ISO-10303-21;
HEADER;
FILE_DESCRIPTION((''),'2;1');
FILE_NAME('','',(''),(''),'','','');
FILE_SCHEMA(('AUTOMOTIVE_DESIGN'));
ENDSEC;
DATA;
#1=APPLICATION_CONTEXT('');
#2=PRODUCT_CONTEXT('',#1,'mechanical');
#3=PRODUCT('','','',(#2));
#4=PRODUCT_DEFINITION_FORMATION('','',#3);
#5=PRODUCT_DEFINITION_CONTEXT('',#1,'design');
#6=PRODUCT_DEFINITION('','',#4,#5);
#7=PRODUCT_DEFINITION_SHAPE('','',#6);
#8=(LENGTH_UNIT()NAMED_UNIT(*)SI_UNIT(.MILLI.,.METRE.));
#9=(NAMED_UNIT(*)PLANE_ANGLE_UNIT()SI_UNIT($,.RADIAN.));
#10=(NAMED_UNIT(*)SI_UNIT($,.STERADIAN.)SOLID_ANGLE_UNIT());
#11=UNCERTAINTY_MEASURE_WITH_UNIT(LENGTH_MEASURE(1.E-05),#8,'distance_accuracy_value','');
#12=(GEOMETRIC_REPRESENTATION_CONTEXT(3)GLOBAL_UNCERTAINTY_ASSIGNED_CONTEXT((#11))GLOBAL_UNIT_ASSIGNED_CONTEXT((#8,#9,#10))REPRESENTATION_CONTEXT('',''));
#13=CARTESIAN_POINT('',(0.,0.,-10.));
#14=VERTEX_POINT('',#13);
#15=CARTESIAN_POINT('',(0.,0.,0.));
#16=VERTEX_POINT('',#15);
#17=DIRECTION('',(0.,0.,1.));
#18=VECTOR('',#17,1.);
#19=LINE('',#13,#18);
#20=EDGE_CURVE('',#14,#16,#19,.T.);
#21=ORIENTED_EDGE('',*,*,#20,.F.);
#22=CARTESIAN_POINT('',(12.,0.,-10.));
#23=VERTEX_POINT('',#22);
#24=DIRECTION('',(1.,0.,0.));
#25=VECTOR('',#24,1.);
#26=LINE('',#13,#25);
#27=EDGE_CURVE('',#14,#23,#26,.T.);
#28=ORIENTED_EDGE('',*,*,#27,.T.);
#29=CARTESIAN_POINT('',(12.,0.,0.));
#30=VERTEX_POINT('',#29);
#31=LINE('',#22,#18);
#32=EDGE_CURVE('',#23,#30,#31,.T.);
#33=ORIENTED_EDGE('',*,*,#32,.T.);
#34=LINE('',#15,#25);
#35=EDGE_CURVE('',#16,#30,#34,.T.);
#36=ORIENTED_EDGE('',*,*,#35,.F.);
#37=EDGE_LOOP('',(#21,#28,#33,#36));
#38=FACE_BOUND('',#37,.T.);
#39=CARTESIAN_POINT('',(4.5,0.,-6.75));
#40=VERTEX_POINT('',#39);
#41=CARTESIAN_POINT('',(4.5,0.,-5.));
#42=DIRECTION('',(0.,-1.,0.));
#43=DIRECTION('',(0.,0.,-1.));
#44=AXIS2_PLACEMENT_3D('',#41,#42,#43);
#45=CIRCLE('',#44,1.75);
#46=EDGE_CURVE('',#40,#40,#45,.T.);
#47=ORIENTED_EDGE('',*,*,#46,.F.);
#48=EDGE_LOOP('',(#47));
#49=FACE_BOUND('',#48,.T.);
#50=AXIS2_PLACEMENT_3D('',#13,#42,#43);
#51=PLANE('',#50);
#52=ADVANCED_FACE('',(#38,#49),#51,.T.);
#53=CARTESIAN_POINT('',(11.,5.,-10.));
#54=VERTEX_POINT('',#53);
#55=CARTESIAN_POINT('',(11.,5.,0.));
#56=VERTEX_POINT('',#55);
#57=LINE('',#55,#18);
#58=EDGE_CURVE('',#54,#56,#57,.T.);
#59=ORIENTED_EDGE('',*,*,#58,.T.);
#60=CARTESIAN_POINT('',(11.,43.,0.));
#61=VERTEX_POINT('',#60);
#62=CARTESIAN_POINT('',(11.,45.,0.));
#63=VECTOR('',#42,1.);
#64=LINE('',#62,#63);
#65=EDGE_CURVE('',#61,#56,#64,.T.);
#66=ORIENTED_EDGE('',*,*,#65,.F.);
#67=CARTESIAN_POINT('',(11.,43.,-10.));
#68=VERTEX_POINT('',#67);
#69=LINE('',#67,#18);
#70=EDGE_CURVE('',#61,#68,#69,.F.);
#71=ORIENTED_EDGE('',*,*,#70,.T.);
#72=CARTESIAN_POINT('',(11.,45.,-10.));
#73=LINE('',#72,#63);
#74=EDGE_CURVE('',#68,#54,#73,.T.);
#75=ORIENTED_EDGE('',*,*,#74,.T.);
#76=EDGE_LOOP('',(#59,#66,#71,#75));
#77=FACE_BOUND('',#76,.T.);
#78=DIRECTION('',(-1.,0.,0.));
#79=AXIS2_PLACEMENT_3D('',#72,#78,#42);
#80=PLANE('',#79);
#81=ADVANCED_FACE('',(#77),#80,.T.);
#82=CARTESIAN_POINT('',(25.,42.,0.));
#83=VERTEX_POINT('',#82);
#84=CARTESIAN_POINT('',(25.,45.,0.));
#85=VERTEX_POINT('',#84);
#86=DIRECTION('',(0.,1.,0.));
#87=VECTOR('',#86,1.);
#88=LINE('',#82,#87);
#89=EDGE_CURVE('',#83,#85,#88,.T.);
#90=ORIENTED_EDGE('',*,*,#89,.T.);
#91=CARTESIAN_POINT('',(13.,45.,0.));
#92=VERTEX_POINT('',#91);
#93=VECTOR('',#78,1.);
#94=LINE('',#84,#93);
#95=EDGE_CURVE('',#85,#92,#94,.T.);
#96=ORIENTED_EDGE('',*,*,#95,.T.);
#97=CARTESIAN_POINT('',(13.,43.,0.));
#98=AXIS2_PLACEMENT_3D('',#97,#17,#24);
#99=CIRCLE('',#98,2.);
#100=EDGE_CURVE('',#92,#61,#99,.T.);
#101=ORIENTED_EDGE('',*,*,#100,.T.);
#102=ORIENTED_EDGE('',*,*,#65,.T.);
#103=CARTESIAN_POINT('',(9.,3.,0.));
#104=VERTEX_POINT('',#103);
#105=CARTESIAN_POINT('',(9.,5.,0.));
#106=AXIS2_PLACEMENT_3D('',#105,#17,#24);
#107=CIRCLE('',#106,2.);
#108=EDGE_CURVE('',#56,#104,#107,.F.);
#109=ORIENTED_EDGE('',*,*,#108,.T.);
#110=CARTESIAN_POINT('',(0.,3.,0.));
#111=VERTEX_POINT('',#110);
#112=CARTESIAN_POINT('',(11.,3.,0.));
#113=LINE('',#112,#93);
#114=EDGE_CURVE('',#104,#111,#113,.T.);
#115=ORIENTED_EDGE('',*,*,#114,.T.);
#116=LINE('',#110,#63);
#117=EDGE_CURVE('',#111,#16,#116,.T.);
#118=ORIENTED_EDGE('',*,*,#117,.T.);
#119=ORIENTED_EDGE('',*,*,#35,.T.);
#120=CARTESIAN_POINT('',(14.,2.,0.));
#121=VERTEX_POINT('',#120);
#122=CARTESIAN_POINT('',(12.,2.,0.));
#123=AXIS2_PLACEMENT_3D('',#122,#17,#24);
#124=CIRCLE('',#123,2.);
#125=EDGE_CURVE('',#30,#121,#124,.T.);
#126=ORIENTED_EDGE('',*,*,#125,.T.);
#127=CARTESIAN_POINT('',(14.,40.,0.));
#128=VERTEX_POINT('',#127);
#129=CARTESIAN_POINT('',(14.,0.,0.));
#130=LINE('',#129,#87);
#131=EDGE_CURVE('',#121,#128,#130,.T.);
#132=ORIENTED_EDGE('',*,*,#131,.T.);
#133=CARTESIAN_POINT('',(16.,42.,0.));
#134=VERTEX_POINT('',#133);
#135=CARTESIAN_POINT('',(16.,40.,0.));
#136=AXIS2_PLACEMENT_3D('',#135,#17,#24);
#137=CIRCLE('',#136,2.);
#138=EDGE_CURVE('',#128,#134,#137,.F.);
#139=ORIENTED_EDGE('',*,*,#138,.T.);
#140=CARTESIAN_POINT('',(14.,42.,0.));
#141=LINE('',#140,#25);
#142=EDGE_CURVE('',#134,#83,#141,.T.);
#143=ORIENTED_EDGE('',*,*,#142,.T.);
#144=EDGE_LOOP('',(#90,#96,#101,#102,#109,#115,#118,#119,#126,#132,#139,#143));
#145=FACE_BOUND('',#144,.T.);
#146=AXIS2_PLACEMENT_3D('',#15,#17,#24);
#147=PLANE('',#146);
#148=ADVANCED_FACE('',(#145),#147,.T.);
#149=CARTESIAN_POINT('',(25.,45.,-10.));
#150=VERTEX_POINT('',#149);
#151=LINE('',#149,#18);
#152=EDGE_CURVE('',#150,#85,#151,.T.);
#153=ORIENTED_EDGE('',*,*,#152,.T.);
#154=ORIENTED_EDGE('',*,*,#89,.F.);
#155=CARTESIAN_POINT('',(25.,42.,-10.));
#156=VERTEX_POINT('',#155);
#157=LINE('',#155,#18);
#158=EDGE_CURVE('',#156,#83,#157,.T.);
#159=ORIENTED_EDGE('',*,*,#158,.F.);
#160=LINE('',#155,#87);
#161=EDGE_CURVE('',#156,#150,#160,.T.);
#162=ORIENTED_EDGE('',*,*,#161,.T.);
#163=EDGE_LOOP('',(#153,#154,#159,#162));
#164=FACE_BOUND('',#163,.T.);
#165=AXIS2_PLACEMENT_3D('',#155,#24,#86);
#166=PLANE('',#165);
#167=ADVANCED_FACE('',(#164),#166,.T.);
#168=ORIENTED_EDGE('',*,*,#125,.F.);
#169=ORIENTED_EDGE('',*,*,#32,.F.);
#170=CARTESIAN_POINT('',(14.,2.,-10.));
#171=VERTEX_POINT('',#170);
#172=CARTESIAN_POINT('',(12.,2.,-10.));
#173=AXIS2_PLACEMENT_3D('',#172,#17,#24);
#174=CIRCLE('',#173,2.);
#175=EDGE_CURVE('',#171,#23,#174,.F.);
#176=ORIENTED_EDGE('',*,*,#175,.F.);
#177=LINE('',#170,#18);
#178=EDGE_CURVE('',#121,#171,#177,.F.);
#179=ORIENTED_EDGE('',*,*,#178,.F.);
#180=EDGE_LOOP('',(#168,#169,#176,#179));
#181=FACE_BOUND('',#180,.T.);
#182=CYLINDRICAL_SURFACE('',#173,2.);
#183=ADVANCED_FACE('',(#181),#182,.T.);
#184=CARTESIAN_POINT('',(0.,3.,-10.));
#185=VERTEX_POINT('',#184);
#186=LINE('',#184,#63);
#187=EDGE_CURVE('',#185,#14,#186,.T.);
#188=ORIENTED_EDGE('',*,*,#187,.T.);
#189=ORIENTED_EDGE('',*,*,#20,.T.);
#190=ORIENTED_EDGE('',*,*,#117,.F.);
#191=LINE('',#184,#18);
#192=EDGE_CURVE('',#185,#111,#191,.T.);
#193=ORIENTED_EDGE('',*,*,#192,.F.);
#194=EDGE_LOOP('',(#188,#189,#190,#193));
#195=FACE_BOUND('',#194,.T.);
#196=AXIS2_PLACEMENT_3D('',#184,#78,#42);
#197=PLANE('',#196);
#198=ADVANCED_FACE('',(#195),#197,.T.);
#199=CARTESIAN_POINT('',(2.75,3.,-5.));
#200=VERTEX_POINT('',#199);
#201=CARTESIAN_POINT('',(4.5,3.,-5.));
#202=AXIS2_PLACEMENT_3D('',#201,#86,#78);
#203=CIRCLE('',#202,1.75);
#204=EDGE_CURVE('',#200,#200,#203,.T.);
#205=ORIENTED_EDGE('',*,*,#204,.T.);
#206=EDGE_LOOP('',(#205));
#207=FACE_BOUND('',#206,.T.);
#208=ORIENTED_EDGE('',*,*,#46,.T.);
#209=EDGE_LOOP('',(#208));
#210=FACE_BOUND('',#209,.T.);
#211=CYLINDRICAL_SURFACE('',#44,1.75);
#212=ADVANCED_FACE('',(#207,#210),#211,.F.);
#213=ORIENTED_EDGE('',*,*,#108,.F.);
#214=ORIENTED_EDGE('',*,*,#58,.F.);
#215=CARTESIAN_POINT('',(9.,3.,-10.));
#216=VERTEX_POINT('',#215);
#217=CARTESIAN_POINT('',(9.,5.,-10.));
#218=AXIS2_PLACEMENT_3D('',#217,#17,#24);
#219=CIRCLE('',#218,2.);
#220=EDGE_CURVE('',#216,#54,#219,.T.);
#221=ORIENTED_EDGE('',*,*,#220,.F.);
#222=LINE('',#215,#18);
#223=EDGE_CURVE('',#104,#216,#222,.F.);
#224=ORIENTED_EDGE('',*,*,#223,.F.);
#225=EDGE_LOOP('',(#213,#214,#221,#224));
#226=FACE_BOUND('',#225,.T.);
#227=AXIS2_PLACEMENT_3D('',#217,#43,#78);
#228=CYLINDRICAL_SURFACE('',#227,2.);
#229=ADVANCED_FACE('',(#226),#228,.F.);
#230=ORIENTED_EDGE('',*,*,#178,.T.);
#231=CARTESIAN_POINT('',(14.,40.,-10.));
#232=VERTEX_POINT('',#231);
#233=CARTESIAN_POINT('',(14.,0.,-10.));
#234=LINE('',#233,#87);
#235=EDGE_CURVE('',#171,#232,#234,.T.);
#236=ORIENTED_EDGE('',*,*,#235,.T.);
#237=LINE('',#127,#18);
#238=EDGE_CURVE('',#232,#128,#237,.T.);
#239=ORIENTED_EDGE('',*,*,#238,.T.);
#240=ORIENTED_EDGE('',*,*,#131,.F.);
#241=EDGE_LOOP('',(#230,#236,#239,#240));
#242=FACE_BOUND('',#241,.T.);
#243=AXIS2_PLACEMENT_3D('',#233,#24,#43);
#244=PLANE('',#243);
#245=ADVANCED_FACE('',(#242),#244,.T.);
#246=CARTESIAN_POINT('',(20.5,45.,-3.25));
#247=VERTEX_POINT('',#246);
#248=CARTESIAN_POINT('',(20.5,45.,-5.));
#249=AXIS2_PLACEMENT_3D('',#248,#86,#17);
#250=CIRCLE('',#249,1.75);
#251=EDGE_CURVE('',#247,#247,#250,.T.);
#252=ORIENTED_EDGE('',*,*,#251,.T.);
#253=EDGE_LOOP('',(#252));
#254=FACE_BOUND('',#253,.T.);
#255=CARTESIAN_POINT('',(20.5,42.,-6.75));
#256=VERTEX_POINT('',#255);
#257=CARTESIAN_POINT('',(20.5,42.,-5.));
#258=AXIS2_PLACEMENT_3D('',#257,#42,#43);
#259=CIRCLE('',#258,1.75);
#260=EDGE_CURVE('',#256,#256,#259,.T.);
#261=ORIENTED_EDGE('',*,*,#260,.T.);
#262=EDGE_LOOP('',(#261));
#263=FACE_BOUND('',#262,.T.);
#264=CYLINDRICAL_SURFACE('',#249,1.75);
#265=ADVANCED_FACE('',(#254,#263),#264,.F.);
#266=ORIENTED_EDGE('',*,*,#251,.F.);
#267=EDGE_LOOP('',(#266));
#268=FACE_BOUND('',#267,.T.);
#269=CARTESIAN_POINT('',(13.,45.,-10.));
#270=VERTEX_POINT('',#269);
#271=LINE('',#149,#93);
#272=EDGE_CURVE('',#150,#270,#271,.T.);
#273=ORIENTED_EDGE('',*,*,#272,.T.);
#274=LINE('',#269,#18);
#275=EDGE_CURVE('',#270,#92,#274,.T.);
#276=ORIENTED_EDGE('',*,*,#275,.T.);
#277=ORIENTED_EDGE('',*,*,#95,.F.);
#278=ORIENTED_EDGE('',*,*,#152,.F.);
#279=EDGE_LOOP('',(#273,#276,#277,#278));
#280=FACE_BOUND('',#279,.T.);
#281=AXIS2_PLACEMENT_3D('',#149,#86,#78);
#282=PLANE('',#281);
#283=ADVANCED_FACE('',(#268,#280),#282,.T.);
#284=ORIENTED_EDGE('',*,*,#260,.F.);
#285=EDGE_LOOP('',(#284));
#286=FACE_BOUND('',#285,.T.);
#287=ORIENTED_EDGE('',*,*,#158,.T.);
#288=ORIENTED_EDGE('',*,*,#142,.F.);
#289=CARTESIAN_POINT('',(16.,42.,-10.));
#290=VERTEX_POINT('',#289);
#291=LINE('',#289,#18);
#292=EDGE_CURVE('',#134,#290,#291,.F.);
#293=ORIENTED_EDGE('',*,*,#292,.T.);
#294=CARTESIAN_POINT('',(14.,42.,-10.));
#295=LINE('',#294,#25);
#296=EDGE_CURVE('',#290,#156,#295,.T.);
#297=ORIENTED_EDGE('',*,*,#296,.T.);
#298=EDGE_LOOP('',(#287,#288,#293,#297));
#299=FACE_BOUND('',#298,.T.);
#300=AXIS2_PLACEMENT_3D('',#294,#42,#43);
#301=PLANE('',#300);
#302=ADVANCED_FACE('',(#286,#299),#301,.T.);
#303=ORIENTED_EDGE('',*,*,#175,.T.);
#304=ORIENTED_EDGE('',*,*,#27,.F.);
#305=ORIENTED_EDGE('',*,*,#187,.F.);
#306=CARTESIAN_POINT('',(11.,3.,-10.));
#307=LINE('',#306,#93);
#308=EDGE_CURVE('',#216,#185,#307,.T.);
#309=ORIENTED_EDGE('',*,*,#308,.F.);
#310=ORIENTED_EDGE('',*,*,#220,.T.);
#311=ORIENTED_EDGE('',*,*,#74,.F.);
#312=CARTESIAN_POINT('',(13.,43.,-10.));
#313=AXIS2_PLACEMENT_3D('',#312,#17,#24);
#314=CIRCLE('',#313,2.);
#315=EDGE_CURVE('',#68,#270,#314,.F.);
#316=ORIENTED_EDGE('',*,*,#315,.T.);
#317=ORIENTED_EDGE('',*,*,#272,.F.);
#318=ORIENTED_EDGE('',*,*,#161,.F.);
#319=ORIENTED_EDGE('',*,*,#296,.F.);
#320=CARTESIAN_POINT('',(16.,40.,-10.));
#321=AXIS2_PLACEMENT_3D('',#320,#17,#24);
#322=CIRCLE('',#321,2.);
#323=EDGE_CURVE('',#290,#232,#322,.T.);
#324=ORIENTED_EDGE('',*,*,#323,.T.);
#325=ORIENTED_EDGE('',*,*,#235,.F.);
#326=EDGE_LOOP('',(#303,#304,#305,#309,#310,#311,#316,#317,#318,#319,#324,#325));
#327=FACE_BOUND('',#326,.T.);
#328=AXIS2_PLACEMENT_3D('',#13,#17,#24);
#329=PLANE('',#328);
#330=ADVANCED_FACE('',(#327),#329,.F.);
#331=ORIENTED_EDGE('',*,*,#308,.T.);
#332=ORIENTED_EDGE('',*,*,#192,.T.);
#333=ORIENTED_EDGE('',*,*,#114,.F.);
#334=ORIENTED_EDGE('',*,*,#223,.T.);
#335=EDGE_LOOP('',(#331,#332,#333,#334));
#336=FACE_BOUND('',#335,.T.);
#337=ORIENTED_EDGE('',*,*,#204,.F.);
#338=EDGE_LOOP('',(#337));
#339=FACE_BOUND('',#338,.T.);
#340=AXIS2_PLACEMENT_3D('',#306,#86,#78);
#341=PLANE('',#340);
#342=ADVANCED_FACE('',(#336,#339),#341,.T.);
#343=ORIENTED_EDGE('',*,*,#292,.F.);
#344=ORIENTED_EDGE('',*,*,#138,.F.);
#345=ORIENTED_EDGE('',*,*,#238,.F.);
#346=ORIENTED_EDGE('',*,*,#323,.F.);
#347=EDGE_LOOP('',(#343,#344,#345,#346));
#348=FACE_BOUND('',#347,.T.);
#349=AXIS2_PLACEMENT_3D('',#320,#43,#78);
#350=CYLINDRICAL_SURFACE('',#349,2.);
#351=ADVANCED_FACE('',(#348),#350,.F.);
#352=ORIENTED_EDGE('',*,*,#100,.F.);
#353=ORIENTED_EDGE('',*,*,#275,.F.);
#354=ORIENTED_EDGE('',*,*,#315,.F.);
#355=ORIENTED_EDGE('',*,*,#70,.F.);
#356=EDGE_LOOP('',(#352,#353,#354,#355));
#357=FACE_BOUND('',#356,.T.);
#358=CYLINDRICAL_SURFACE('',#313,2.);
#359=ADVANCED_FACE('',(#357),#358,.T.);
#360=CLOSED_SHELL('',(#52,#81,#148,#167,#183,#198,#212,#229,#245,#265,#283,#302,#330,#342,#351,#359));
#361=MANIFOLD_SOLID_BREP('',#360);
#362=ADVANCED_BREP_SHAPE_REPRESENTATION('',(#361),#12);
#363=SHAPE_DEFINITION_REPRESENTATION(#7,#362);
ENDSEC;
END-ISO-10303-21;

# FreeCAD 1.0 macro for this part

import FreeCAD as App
import Part
import Sketcher
from FreeCAD import Vector
Q = App.Units.Quantity


def edges_at(feature, points):
    """Names of the edges that pass closest to the given points."""
    edges = feature.Shape.Edges
    near = lambda p: min(range(len(edges)), key=lambda i: edges[i].distToShape(Part.Vertex(*p))[0])
    return sorted({f"Edge{near(p) + 1}" for p in points})

doc = App.newDocument("Part")
body = doc.addObject("PartDesign::Body", "Body")

sketch1 = body.newObject("Sketcher::SketchObject", "Sketch")
sketch1.AttachmentSupport = (doc.getObject("XY_Plane"), [""])
sketch1.MapMode = "FlatFace"
sketch1.addGeometry([
    Part.LineSegment(Vector(0, 0, 0), Vector(14, 0, 0)),
    Part.LineSegment(Vector(14, 0, 0), Vector(14, 42, 0)),
    Part.LineSegment(Vector(14, 42, 0), Vector(25, 42, 0)),
    Part.LineSegment(Vector(25, 42, 0), Vector(25, 45, 0)),
    Part.LineSegment(Vector(25, 45, 0), Vector(11, 45, 0)),
    Part.LineSegment(Vector(11, 45, 0), Vector(11, 3, 0)),
    Part.LineSegment(Vector(11, 3, 0), Vector(0, 3, 0)),
    Part.LineSegment(Vector(0, 3, 0), Vector(0, 0, 0)),
], False)
sketch1.addConstraint([
    Sketcher.Constraint("Coincident", 0, 2, 1, 1),
    Sketcher.Constraint("Coincident", 1, 2, 2, 1),
    Sketcher.Constraint("Coincident", 2, 2, 3, 1),
    Sketcher.Constraint("Coincident", 3, 2, 4, 1),
    Sketcher.Constraint("Coincident", 4, 2, 5, 1),
    Sketcher.Constraint("Coincident", 5, 2, 6, 1),
    Sketcher.Constraint("Coincident", 6, 2, 7, 1),
    Sketcher.Constraint("Coincident", 7, 2, 0, 1),
    Sketcher.Constraint("Horizontal", 0),
    Sketcher.Constraint("Vertical", 1),
    Sketcher.Constraint("Horizontal", 2),
    Sketcher.Constraint("Vertical", 3),
    Sketcher.Constraint("Horizontal", 4),
    Sketcher.Constraint("Vertical", 5),
    Sketcher.Constraint("Horizontal", 6),
    Sketcher.Constraint("Vertical", 7),
    Sketcher.Constraint("Coincident", 7, 2, -1, 1),
    Sketcher.Constraint("Equal", 0, 4),
    Sketcher.Constraint("Equal", 1, 5),
    Sketcher.Constraint("DistanceX", 0, 1, 0, 2, Q("14 mm")),
    Sketcher.Constraint("DistanceX", 2, 1, 2, 2, Q("11 mm")),
    Sketcher.Constraint("DistanceY", 1, 1, 1, 2, Q("42 mm")),
    Sketcher.Constraint("DistanceY", 3, 1, 3, 2, Q("3 mm")),
])
pad1 = body.newObject("PartDesign::Pad", "Pad")
pad1.Profile = sketch1
pad1.Length = 10
pad1.Reversed = True
doc.recompute()

fillet = body.newObject("PartDesign::Fillet", "Fillet")
fillet.Base = (pad1, edges_at(pad1, [
    (11, 3, -5),
    (11, 45, -5),
    (14, 42, -5),
    (14, 0, -5),
]))
fillet.Radius = 2

sketch2 = body.newObject("Sketcher::SketchObject", "Sketch001")
sketch2.AttachmentSupport = (doc.getObject("XZ_Plane"), [""])
sketch2.MapMode = "FlatFace"
sketch2.addGeometry(Part.Circle(Vector(4.5, -5, 0), Vector(0, 0, 1), 1.8), False)
sketch2.addConstraint([
    Sketcher.Constraint("Diameter", 0, Q("3.5 mm")),
    Sketcher.Constraint("DistanceY", 0, 3, -1, 1, Q("5 mm")),
    Sketcher.Constraint("DistanceX", -1, 1, 0, 3, Q("4.5 mm")),
])
doc.recompute()
hole = body.newObject("PartDesign::Hole", "Hole")
hole.Profile = sketch2
hole.ThreadType = "None"
hole.Diameter = 3.5
hole.DepthType = "ThroughAll"

sketch3 = body.newObject("Sketcher::SketchObject", "Sketch002")
sketch3.AttachmentSupport = (doc.getObject("XZ_Plane"), [""])
sketch3.MapMode = "FlatFace"
sketch3.AttachmentOffset = App.Placement(Vector(0, 0, -45), App.Rotation())
sketch3.addGeometry(Part.Circle(Vector(20.5, -5, 0), Vector(0, 0, 1), 1.8), False)
sketch3.addConstraint([
    Sketcher.Constraint("Diameter", 0, Q("3.5 mm")),
    Sketcher.Constraint("DistanceY", 0, 3, -1, 1, Q("5 mm")),
    Sketcher.Constraint("DistanceX", -1, 1, 0, 3, Q("20.5 mm")),
])
doc.recompute()
hole2 = body.newObject("PartDesign::Hole", "Hole001")
hole2.Profile = sketch3
hole2.ThreadType = "None"
hole2.Diameter = 3.5
hole2.DepthType = "ThroughAll"
hole2.Reversed = True

doc.recompute()
